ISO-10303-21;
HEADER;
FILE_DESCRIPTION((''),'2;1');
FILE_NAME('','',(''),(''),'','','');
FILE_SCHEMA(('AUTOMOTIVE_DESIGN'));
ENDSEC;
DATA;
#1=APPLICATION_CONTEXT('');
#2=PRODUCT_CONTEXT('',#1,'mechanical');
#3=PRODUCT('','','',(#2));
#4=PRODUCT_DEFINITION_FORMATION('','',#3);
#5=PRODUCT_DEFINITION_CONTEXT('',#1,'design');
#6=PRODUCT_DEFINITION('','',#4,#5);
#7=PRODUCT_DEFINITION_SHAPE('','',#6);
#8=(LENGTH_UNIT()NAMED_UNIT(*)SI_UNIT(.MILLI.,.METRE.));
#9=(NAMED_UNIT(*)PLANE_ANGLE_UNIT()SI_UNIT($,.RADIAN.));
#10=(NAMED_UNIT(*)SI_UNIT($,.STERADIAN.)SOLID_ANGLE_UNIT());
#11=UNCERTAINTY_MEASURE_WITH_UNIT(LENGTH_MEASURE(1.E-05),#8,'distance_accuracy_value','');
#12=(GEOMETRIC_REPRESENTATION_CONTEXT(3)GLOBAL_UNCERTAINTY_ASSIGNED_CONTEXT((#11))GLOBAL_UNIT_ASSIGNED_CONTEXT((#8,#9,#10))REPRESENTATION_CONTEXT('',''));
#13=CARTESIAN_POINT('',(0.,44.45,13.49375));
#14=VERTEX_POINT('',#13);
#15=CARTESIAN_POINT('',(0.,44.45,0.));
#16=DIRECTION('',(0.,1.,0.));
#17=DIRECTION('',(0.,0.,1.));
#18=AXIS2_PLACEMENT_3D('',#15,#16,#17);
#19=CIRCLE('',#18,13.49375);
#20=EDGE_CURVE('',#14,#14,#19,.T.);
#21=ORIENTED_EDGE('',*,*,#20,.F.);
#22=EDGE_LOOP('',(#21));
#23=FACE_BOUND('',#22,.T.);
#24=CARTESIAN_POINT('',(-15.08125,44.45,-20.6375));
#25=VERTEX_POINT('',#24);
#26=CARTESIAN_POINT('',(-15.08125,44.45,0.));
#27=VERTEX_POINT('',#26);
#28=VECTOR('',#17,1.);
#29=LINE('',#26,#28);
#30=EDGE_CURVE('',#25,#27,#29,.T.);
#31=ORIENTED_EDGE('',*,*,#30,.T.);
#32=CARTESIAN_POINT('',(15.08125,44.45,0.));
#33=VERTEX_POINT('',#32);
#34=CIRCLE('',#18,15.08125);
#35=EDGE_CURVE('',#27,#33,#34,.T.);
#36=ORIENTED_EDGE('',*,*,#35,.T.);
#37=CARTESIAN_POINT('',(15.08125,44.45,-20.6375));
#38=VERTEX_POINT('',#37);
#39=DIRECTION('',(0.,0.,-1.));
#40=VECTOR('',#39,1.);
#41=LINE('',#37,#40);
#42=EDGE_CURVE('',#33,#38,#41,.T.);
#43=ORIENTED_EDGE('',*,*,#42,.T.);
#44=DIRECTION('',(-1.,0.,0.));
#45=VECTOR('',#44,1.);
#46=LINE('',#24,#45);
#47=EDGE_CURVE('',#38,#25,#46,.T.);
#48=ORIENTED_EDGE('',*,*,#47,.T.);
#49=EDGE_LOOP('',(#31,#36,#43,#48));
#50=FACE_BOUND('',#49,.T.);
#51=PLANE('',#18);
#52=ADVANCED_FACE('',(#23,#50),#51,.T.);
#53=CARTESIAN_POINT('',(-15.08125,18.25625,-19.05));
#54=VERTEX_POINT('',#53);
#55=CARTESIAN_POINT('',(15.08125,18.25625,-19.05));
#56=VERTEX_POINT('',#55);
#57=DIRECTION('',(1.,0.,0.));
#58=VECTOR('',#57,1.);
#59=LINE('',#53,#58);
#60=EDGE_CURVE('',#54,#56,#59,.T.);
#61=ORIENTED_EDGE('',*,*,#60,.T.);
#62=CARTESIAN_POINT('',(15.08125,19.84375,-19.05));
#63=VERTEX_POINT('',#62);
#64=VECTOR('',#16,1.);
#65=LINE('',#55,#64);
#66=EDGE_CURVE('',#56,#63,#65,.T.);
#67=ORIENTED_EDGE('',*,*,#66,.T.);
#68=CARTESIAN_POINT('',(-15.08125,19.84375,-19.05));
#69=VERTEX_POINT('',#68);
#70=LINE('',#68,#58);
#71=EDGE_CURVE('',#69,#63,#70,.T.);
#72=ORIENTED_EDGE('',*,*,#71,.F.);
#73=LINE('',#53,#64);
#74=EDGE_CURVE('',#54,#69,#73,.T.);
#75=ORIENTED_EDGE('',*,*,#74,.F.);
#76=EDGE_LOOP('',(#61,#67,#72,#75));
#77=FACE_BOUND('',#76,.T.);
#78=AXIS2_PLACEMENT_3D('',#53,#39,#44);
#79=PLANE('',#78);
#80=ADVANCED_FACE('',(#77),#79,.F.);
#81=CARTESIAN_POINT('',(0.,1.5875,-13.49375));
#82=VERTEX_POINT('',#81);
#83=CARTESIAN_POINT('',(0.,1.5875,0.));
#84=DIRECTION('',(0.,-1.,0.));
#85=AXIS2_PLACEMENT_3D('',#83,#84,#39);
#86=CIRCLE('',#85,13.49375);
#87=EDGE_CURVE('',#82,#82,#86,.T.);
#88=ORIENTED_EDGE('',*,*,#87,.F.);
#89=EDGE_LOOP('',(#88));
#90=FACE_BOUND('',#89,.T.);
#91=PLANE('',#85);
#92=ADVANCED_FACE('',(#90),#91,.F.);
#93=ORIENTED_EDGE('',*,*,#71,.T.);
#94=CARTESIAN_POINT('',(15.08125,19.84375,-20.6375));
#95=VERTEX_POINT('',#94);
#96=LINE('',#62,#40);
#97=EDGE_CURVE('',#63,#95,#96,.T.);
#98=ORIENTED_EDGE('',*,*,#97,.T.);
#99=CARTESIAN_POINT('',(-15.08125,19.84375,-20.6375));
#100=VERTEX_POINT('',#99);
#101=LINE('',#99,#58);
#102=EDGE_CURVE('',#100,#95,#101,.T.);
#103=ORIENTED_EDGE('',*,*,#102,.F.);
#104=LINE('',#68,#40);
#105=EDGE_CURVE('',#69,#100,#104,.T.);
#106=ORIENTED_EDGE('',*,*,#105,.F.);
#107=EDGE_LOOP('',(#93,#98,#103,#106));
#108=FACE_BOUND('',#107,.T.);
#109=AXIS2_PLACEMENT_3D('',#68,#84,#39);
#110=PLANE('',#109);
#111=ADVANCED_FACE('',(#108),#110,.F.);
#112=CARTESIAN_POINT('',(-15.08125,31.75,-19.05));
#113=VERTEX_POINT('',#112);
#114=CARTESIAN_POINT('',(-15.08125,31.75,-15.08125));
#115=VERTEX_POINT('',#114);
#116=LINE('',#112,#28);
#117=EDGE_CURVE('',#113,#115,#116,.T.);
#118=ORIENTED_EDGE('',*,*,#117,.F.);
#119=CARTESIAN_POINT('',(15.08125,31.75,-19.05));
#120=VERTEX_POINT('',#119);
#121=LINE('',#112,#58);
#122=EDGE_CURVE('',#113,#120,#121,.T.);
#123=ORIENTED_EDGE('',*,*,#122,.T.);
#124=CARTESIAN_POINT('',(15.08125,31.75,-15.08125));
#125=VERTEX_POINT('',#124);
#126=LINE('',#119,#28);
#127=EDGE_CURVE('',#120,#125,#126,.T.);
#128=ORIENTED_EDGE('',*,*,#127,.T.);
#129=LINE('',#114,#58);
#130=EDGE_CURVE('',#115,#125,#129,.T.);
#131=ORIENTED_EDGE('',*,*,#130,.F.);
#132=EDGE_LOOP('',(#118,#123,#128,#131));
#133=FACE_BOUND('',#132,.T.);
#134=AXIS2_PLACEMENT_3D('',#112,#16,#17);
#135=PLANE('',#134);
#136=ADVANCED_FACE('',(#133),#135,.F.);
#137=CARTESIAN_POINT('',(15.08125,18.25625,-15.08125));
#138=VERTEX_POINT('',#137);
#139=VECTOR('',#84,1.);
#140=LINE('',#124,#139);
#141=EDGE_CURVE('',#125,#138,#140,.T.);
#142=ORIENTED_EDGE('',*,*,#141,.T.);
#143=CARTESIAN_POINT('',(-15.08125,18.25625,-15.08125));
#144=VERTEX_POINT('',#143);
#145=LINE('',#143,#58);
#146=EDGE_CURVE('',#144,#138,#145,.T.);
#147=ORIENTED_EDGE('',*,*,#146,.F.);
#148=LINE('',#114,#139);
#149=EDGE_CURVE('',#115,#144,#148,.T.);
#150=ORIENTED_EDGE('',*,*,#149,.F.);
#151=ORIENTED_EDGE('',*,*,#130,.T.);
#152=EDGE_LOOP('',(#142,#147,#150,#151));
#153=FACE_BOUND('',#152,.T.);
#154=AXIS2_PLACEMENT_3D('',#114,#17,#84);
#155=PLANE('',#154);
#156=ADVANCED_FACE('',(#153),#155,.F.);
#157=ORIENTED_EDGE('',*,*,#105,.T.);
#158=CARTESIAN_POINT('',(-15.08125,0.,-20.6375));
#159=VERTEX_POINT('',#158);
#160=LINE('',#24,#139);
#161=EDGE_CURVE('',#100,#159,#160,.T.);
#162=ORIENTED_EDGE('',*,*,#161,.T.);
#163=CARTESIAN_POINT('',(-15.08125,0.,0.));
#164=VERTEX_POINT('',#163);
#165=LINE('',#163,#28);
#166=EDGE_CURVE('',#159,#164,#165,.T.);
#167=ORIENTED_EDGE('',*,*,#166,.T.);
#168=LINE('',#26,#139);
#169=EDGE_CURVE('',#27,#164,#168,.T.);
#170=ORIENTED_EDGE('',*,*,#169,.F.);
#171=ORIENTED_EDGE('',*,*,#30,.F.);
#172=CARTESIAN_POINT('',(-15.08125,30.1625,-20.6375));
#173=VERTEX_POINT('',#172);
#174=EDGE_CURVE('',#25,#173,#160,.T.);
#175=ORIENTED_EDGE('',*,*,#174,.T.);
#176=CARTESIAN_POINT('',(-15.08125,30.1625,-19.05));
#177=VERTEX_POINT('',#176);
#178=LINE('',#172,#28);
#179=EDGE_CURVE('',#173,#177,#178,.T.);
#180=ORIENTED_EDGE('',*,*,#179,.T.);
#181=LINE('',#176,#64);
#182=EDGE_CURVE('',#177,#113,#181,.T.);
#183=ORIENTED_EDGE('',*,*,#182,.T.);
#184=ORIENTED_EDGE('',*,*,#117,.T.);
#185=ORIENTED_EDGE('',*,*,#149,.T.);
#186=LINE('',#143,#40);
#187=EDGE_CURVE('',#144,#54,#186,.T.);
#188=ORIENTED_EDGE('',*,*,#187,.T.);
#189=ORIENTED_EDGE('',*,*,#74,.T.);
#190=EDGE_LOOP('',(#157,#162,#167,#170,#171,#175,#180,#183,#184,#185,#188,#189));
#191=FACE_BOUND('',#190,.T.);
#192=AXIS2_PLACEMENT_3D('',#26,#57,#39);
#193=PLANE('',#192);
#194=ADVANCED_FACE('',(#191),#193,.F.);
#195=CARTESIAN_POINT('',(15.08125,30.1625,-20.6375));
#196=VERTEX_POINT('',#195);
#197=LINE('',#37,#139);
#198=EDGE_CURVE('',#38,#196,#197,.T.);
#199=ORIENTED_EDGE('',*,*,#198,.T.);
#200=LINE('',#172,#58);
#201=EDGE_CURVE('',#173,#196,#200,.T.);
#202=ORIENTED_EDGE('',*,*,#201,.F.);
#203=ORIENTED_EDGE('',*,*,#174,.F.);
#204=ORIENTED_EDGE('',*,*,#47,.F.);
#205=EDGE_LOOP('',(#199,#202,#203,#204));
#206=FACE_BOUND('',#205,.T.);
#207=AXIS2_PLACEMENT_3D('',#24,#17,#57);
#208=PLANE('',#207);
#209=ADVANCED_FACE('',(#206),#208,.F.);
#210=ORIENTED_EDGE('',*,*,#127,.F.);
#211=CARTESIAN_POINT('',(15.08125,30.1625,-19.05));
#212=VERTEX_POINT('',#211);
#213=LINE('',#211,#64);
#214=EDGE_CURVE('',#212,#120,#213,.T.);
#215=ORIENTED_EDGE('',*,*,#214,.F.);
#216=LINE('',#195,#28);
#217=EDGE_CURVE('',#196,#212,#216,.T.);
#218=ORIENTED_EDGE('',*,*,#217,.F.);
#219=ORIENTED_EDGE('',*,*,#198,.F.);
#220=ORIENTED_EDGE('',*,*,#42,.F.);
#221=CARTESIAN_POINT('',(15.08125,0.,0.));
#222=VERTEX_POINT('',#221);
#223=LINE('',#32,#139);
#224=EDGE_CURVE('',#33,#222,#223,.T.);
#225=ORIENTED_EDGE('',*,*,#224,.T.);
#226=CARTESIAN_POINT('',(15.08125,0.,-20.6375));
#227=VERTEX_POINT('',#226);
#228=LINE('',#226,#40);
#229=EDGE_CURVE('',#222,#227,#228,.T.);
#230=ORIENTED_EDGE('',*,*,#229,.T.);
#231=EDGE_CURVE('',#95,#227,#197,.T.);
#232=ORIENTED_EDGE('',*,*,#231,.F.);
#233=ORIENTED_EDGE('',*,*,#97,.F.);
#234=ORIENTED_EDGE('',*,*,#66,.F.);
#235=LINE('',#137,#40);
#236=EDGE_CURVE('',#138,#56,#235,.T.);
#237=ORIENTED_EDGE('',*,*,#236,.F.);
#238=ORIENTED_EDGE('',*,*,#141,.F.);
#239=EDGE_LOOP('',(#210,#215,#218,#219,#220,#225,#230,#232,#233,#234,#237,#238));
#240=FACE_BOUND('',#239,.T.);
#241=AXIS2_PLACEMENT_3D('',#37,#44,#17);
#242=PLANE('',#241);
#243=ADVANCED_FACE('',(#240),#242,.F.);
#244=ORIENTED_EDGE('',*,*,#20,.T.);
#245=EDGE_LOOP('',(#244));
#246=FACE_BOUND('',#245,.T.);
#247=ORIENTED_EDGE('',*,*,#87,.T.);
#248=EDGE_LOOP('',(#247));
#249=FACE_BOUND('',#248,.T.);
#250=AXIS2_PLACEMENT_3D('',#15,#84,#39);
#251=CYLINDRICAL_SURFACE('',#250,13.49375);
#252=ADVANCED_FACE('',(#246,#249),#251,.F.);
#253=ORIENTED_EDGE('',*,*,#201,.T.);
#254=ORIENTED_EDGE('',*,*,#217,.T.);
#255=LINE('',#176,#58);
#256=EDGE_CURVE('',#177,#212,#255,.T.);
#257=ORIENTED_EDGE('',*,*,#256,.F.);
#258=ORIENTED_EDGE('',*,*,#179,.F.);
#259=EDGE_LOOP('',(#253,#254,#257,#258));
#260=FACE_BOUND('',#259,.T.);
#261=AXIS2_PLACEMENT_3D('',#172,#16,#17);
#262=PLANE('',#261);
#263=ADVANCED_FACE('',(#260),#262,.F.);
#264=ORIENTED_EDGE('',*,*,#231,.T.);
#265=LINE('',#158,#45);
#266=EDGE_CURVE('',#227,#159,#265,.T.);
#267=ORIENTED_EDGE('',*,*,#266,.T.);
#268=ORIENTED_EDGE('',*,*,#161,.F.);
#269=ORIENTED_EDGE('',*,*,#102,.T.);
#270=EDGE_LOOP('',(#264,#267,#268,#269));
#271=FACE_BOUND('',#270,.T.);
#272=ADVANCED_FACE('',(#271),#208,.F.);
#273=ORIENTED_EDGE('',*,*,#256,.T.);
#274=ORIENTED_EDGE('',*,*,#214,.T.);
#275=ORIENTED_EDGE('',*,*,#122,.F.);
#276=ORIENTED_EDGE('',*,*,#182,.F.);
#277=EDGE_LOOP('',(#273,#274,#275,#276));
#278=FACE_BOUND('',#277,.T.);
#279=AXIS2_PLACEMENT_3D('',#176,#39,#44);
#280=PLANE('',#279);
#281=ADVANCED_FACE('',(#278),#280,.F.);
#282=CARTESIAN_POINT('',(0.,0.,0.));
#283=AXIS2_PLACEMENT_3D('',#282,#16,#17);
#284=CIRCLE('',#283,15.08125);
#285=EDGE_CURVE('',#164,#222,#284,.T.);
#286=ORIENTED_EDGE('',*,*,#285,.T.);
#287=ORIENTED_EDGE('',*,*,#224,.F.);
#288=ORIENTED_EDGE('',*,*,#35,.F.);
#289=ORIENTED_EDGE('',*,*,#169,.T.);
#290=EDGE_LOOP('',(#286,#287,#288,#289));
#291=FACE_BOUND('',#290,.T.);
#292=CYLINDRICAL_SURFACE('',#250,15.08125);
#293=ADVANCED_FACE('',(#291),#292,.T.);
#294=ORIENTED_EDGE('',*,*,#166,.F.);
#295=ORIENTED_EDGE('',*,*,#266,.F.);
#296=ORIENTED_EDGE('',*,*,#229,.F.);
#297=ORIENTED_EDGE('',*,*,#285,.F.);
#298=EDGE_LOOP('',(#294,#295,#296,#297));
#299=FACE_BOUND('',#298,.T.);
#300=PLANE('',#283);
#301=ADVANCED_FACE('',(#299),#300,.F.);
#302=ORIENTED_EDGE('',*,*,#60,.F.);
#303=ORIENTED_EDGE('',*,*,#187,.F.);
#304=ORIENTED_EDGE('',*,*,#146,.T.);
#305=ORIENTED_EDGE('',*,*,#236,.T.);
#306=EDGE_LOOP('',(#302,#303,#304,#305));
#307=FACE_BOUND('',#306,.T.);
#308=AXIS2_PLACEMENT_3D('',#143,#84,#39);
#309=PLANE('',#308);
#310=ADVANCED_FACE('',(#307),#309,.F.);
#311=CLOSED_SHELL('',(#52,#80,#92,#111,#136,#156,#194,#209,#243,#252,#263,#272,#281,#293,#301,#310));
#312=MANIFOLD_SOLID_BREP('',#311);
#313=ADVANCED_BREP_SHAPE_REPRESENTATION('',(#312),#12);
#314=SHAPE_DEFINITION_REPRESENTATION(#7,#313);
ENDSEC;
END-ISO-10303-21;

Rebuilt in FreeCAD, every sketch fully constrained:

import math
import FreeCAD as App
import Part
import Sketcher
from FreeCAD import Vector
Q = App.Units.Quantity

doc = App.newDocument("Part")
body = doc.addObject("PartDesign::Body", "Body")

# Sketch on XZ plane
sketch1 = body.newObject("Sketcher::SketchObject", "Sketch")
sketch1.AttachmentSupport = (doc.getObject("XZ_Plane"), [""])
sketch1.MapMode = "FlatFace"
sketch1.addGeometry([
    Part.LineSegment(Vector(-15, -21, 0), Vector(-15, 0, 0)),  # 0
    Part.ArcOfCircle(Part.Circle(Vector(0, 0, 0), Vector(0, 0, 1), 15), math.radians(0), math.radians(180)),  # 1
    Part.LineSegment(Vector(15, 0, 0), Vector(15, -21, 0)),  # 2
    Part.LineSegment(Vector(15, -21, 0), Vector(-15, -21, 0)),  # 3
    Part.Circle(Vector(0, 0, 0), Vector(0, 0, 1), 13),  # 4
], False)
sketch1.addConstraint([
    Sketcher.Constraint("Tangent", 0, 2, 1, 2),
    Sketcher.Constraint("Tangent", 1, 1, 2, 1),
    Sketcher.Constraint("Coincident", 2, 2, 3, 1),
    Sketcher.Constraint("Coincident", 3, 2, 0, 1),
    Sketcher.Constraint("Vertical", 0),
    Sketcher.Constraint("Vertical", 2),
    Sketcher.Constraint("Horizontal", 3),
    Sketcher.Constraint("Coincident", 1, 3, -1, 1),
    Sketcher.Constraint("Coincident", 4, 3, -1, 1),
    Sketcher.Constraint("Diameter", 4, Q("1.0625 in")),
    Sketcher.Constraint("Radius", 1, Q("0.59375 in")),
    Sketcher.Constraint("DistanceY", 0, 1, 0, 2, Q("0.8125 in")),
])
pad1 = body.newObject("PartDesign::Pad", "Pad")
pad1.Profile = sketch1
pad1.Length = Q("1.75 in")
pad1.Reversed = True

# Sketch on XZ plane
sketch2 = body.newObject("Sketcher::SketchObject", "Sketch001")
sketch2.AttachmentSupport = (doc.getObject("XZ_Plane"), [""])
sketch2.MapMode = "FlatFace"
sketch2.addGeometry(Part.Circle(Vector(0, 0, 0), Vector(0, 0, 1), 15), False)
sketch2.addConstraint([
    Sketcher.Constraint("Coincident", 0, 3, -1, 1),
    Sketcher.Constraint("Diameter", 0, Q("1.1875 in")),
])
pad2 = body.newObject("PartDesign::Pad", "Pad001")
pad2.Profile = sketch2
pad2.Length = Q("0.0625 in")
pad2.Reversed = True

# Sketch on YZ plane
sketch3 = body.newObject("Sketcher::SketchObject", "Sketch002")
sketch3.AttachmentSupport = (doc.getObject("YZ_Plane"), [""])
sketch3.MapMode = "FlatFace"
sketch3.AttachmentOffset = App.Placement(Vector(0, 0, 0.59375 * 25.4), App.Rotation())
sketch3.addGeometry([
    Part.LineSegment(Vector(30.2, -20.6, 0), Vector(30.2, -19.1, 0)),  # 0
    Part.LineSegment(Vector(30.2, -19.1, 0), Vector(31.8, -19.1, 0)),  # 1
    Part.LineSegment(Vector(31.8, -19.1, 0), Vector(31.8, -15.1, 0)),  # 2
    Part.LineSegment(Vector(31.8, -15.1, 0), Vector(18.3, -15.1, 0)),  # 3
    Part.LineSegment(Vector(18.3, -15.1, 0), Vector(18.3, -19.1, 0)),  # 4
    Part.LineSegment(Vector(18.3, -19.1, 0), Vector(19.8, -19.1, 0)),  # 5
    Part.LineSegment(Vector(19.8, -19.1, 0), Vector(19.8, -20.6, 0)),  # 6
    Part.LineSegment(Vector(19.8, -20.6, 0), Vector(30.2, -20.6, 0)),  # 7
], False)
sketch3.addConstraint([
    Sketcher.Constraint("Coincident", 0, 2, 1, 1),
    Sketcher.Constraint("Coincident", 1, 2, 2, 1),
    Sketcher.Constraint("Coincident", 2, 2, 3, 1),
    Sketcher.Constraint("Coincident", 3, 2, 4, 1),
    Sketcher.Constraint("Coincident", 4, 2, 5, 1),
    Sketcher.Constraint("Coincident", 5, 2, 6, 1),
    Sketcher.Constraint("Coincident", 6, 2, 7, 1),
    Sketcher.Constraint("Coincident", 7, 2, 0, 1),
    Sketcher.Constraint("Vertical", 0),
    Sketcher.Constraint("Horizontal", 1),
    Sketcher.Constraint("Vertical", 2),
    Sketcher.Constraint("Horizontal", 3),
    Sketcher.Constraint("Vertical", 4),
    Sketcher.Constraint("Horizontal", 5),
    Sketcher.Constraint("Vertical", 6),
    Sketcher.Constraint("Horizontal", 7),
    Sketcher.Constraint("Horizontal", 1, 2, 4, 2),
    Sketcher.Constraint("Equal", 1, 5),
    Sketcher.Constraint("Equal", 5, 0),
    Sketcher.Constraint("DistanceX", 1, 1, 1, 2, Q("0.0625 in")),
    Sketcher.Constraint("DistanceX", 3, 2, 3, 1, Q("0.53125 in")),
    Sketcher.Constraint("DistanceY", 2, 1, 2, 2, Q("0.15625 in")),
    Sketcher.Constraint("DistanceY", 0, 2, -1, 1, Q("0.75 in")),
    Sketcher.Constraint("DistanceX", -1, 1, 1, 2, Q("1.25 in")),
])
pocket1 = body.newObject("PartDesign::Pocket", "Pocket")
pocket1.Profile = sketch3
pocket1.Type = "ThroughAll"

doc.recompute()
